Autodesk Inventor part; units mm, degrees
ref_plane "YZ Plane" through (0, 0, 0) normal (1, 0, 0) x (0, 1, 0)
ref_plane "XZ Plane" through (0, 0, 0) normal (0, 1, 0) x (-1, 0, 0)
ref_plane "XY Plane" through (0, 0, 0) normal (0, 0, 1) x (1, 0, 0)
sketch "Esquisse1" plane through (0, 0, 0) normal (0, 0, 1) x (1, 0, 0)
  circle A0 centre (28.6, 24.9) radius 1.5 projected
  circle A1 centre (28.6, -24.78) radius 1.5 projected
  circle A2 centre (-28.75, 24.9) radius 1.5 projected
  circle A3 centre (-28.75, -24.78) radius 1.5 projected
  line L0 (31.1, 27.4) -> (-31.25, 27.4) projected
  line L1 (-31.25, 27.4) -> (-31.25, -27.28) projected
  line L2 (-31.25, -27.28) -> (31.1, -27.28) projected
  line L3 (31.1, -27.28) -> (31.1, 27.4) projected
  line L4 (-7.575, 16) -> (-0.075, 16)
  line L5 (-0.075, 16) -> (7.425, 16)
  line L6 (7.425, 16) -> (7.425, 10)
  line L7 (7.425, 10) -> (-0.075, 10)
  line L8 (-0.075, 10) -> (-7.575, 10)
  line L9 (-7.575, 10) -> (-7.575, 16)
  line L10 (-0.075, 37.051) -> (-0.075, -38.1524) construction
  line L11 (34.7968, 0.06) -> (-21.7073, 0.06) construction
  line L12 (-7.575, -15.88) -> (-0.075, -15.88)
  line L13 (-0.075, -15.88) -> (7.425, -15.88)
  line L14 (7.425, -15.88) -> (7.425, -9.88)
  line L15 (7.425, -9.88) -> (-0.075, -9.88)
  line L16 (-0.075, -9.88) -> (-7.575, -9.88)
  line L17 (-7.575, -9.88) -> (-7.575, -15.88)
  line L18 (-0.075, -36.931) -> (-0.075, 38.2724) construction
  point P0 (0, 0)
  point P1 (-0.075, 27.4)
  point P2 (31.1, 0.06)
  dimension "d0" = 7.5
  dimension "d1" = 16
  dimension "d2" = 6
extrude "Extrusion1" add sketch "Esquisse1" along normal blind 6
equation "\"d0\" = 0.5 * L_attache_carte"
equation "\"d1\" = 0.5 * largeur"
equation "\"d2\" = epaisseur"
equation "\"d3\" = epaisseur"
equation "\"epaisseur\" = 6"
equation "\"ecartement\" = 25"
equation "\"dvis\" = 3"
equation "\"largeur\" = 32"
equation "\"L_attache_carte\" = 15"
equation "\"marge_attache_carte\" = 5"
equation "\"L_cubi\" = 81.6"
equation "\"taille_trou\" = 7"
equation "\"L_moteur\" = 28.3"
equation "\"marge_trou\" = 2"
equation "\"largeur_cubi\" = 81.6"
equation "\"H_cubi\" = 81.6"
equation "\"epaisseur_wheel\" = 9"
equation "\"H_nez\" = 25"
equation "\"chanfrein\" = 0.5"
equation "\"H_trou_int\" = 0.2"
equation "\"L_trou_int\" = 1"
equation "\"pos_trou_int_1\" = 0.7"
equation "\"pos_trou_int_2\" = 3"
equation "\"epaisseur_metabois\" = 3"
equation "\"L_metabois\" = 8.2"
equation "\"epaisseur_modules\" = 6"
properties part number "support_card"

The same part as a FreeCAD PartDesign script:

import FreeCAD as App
import Part
import Sketcher

V = App.Vector


def add_polygon(sketch, points):
    """Adds a closed chain of lines whose ends are joined by coincident constraints."""
    first, n = sketch.GeometryCount, len(points)
    for a, b in zip(points, points[1:] + points[:1]):
        sketch.addGeometry(Part.LineSegment(App.Vector(*a, 0), App.Vector(*b, 0)), False)
    for i in range(n):
        sketch.addConstraint(Sketcher.Constraint("Coincident", first + i, 2, first + (i + 1) % n, 1))

doc = App.newDocument("Part")
body = doc.addObject("PartDesign::Body", "Body")

sketch1 = doc.addObject("Sketcher::SketchObject", "Sketch")
body.addObject(sketch1)
sketch1.AttachmentSupport = (doc.XY_Plane, [""])
sketch1.MapMode = "FlatFace"
add_polygon(sketch1, [(31.1, -27.3), (31.1, 27.4), (-31.2, 27.4), (-31.2, -27.3)])
sketch1.addGeometry(Part.Circle(V(-28.8, -24.8, 0), V(0, 0, 1), 1.5), False)
sketch1.addGeometry(Part.Circle(V(28.6, -24.8, 0), V(0, 0, 1), 1.5), False)
add_polygon(sketch1, [(7.4, -15.9), (-7.6, -15.9), (-7.6, -9.9), (7.4, -9.9)])
sketch1.addGeometry(Part.Circle(V(-28.8, 24.9, 0), V(0, 0, 1), 1.5), False)
add_polygon(sketch1, [(-7.6, 10), (-7.6, 16), (7.4, 16), (7.4, 10)])
sketch1.addGeometry(Part.Circle(V(28.6, 24.9, 0), V(0, 0, 1), 1.5), False)
sketch1.addConstraint(Sketcher.Constraint("Vertical", 0))
sketch1.addConstraint(Sketcher.Constraint("Horizontal", 1))
sketch1.addConstraint(Sketcher.Constraint("Vertical", 2))
sketch1.addConstraint(Sketcher.Constraint("Horizontal", 3))
sketch1.addConstraint(Sketcher.Constraint("Horizontal", 6))
sketch1.addConstraint(Sketcher.Constraint("Vertical", 7))
sketch1.addConstraint(Sketcher.Constraint("Horizontal", 8))
sketch1.addConstraint(Sketcher.Constraint("Vertical", 9))
sketch1.addConstraint(Sketcher.Constraint("Vertical", 11))
sketch1.addConstraint(Sketcher.Constraint("Horizontal", 12))
sketch1.addConstraint(Sketcher.Constraint("Vertical", 13))
sketch1.addConstraint(Sketcher.Constraint("Horizontal", 14))
sketch1.addConstraint(Sketcher.Constraint("Equal", 4, 5))
sketch1.addConstraint(Sketcher.Constraint("Equal", 5, 10))
sketch1.addConstraint(Sketcher.Constraint("Equal", 10, 15))
sketch1.addConstraint(Sketcher.Constraint("Horizontal", 4, 3, 5, 3))
sketch1.addConstraint(Sketcher.Constraint("Horizontal", 10, 3, 15, 3))
sketch1.addConstraint(Sketcher.Constraint("Vertical", 4, 3, 10, 3))
sketch1.addConstraint(Sketcher.Constraint("Vertical", 5, 3, 15, 3))
sketch1.addConstraint(Sketcher.Constraint("Vertical", 7, 2, 11, 2))
sketch1.addConstraint(Sketcher.Constraint("Vertical", 9, 2, 12, 2))
sketch1.addConstraint(Sketcher.Constraint("Equal", 9, 11))
sketch1.addConstraint(Sketcher.Constraint("DistanceY", 7, 1, 7, 2, 6.0))
sketch1.addConstraint(Sketcher.Constraint("Diameter", 4, 3.0))
sketch1.addConstraint(Sketcher.Constraint("DistanceY", -1, 1, 11, 2, 16.0))
sketch1.addConstraint(Sketcher.Constraint("DistanceX", 6, 2, 6, 1, 15.0))
sketch1.addConstraint(Sketcher.Constraint("DistanceX", 1, 2, 1, 1, 62.35))
sketch1.addConstraint(Sketcher.Constraint("DistanceY", 0, 1, 0, 2, 54.68))
sketch1.addConstraint(Sketcher.Constraint("DistanceX", -1, 1, 5, 3, 28.6))
sketch1.addConstraint(Sketcher.Constraint("DistanceY", -1, 1, 10, 3, 24.9))
sketch1.addConstraint(Sketcher.Constraint("DistanceX", -1, 1, 0, 2, 31.1))
sketch1.addConstraint(Sketcher.Constraint("DistanceY", -1, 1, 0, 2, 27.4))
sketch1.addConstraint(Sketcher.Constraint("DistanceX", 1, 2, 10, 3, 2.5))
sketch1.addConstraint(Sketcher.Constraint("DistanceY", 2, 2, 4, 3, 2.5))
sketch1.addConstraint(Sketcher.Constraint("DistanceY", 4, 3, 6, 2, 8.9))
sketch1.addConstraint(Sketcher.Constraint("DistanceX", 6, 2, -1, 1, 7.575))
pad1 = doc.addObject("PartDesign::Pad", "Pad")
body.addObject(pad1)
pad1.Profile = sketch1
pad1.Length = 6

doc.recompute()
